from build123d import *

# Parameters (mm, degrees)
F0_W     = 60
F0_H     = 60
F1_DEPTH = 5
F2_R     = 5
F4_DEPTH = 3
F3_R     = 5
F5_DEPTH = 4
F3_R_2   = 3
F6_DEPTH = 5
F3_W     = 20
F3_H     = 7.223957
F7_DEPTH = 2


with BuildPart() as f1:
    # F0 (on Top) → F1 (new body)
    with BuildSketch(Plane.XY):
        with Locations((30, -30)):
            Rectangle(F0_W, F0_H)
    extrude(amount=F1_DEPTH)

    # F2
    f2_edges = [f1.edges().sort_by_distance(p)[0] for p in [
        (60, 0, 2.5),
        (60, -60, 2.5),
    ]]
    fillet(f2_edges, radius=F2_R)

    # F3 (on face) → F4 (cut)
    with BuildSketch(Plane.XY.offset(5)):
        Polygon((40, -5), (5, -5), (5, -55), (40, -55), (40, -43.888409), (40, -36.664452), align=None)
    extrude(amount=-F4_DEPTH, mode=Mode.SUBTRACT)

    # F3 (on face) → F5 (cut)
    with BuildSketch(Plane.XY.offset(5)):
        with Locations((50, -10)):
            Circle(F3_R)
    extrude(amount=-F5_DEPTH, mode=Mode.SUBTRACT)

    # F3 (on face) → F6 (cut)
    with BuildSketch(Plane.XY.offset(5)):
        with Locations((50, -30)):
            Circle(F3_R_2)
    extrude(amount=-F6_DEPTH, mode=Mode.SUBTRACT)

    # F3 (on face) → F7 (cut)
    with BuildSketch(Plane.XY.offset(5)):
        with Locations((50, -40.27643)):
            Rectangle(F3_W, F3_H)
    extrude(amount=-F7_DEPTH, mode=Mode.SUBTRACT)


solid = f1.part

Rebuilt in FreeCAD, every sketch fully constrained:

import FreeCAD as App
import Part
import Sketcher


def edges_at(feature, points):
    """Names of the edges that pass closest to the given points."""
    edges = feature.Shape.Edges
    near = lambda p: min(range(len(edges)), key=lambda i: edges[i].distToShape(Part.Vertex(*p))[0])
    return sorted({f"Edge{near(p) + 1}" for p in points})


def add_polygon(sketch, points):
    """Adds a closed chain of lines whose ends are joined by coincident constraints."""
    first, n = sketch.GeometryCount, len(points)
    for a, b in zip(points, points[1:] + points[:1]):
        sketch.addGeometry(Part.LineSegment(App.Vector(*a, 0), App.Vector(*b, 0)), False)
    for i in range(n):
        sketch.addConstraint(Sketcher.Constraint("Coincident", first + i, 2, first + (i + 1) % n, 1))

doc = App.newDocument("Part")
body = doc.addObject("PartDesign::Body", "Body")

# Sketch on XY plane
sketch1 = doc.addObject("Sketcher::SketchObject", "Sketch")
body.addObject(sketch1)
sketch1.AttachmentSupport = (doc.XY_Plane, [""])
sketch1.MapMode = "FlatFace"
add_polygon(sketch1, [(0, 0), (0, -60), (60, -60), (60, 0)])  # lines 0-3
sketch1.addConstraint(Sketcher.Constraint("Vertical", 0))
sketch1.addConstraint(Sketcher.Constraint("Horizontal", 1))
sketch1.addConstraint(Sketcher.Constraint("Vertical", 2))
sketch1.addConstraint(Sketcher.Constraint("Horizontal", 3))
sketch1.addConstraint(Sketcher.Constraint("Coincident", 3, 2, -1, 1))
sketch1.addConstraint(Sketcher.Constraint("Equal", 3, 0))
sketch1.addConstraint(Sketcher.Constraint("DistanceX", 1, 1, 1, 2, 60.0))
pad1 = doc.addObject("PartDesign::Pad", "Pad")
body.addObject(pad1)
pad1.Profile = sketch1
pad1.Length = 5
doc.recompute()

fillet = doc.addObject("PartDesign::Fillet", "Fillet")
body.addObject(fillet)
fillet.Base = (pad1, edges_at(pad1, [(60, 0, 2.5), (60, -60, 2.5)]))
fillet.Radius = 5

# Sketch on XY plane
sketch2 = doc.addObject("Sketcher::SketchObject", "Sketch001")
body.addObject(sketch2)
sketch2.AttachmentSupport = (doc.XY_Plane, [""])
sketch2.MapMode = "FlatFace"
sketch2.AttachmentOffset = App.Placement(App.Vector(0, 0, 5), App.Rotation())
add_polygon(sketch2, [(40, -5), (5, -5), (5, -55), (40, -55)])  # lines 0-3
sketch2.addConstraint(Sketcher.Constraint("Horizontal", 0))
sketch2.addConstraint(Sketcher.Constraint("Vertical", 1))
sketch2.addConstraint(Sketcher.Constraint("Horizontal", 2))
sketch2.addConstraint(Sketcher.Constraint("Vertical", 3))
sketch2.addConstraint(Sketcher.Constraint("DistanceX", 0, 2, 0, 1, 35.0))
sketch2.addConstraint(Sketcher.Constraint("DistanceY", 1, 2, 1, 1, 50.0))
sketch2.addConstraint(Sketcher.Constraint("DistanceX", -1, 1, 0, 2, 5.0))
sketch2.addConstraint(Sketcher.Constraint("DistanceY", 0, 2, -1, 1, 5.0))
pocket1 = doc.addObject("PartDesign::Pocket", "Pocket")
body.addObject(pocket1)
pocket1.Profile = sketch2
pocket1.Length = 3

# Sketch on XY plane
sketch3 = doc.addObject("Sketcher::SketchObject", "Sketch002")
body.addObject(sketch3)
sketch3.AttachmentSupport = (doc.XY_Plane, [""])
sketch3.MapMode = "FlatFace"
sketch3.AttachmentOffset = App.Placement(App.Vector(0, 0, 5), App.Rotation())
sketch3.addGeometry(Part.Circle(App.Vector(50, -10, 0), App.Vector(0, 0, 1), 5), False)
sketch3.addConstraint(Sketcher.Constraint("Diameter", 0, 10.0))
sketch3.addConstraint(Sketcher.Constraint("DistanceX", -1, 1, 0, 3, 50.0))
sketch3.addConstraint(Sketcher.Constraint("DistanceY", 0, 3, -1, 1, 10.0))
pocket2 = doc.addObject("PartDesign::Pocket", "Pocket001")
body.addObject(pocket2)
pocket2.Profile = sketch3
pocket2.Length = 4

# Sketch on XY plane
sketch4 = doc.addObject("Sketcher::SketchObject", "Sketch003")
body.addObject(sketch4)
sketch4.AttachmentSupport = (doc.XY_Plane, [""])
sketch4.MapMode = "FlatFace"
sketch4.AttachmentOffset = App.Placement(App.Vector(0, 0, 5), App.Rotation())
sketch4.addGeometry(Part.Circle(App.Vector(50, -30, 0), App.Vector(0, 0, 1), 3), False)
sketch4.addConstraint(Sketcher.Constraint("Diameter", 0, 6.0))
sketch4.addConstraint(Sketcher.Constraint("DistanceX", -1, 1, 0, 3, 50.0))
sketch4.addConstraint(Sketcher.Constraint("DistanceY", 0, 3, -1, 1, 30.0))
pocket3 = doc.addObject("PartDesign::Pocket", "Pocket002")
body.addObject(pocket3)
pocket3.Profile = sketch4
pocket3.Length = 5

# Sketch on XY plane
sketch5 = doc.addObject("Sketcher::SketchObject", "Sketch004")
body.addObject(sketch5)
sketch5.AttachmentSupport = (doc.XY_Plane, [""])
sketch5.MapMode = "FlatFace"
sketch5.AttachmentOffset = App.Placement(App.Vector(0, 0, 5), App.Rotation())
add_polygon(sketch5, [(40, -37), (40, -44), (60, -44), (60, -37)])  # lines 0-3
sketch5.addConstraint(Sketcher.Constraint("Vertical", 0))
sketch5.addConstraint(Sketcher.Constraint("Horizontal", 1))
sketch5.addConstraint(Sketcher.Constraint("Vertical", 2))
sketch5.addConstraint(Sketcher.Constraint("Horizontal", 3))
sketch5.addConstraint(Sketcher.Constraint("DistanceX", 1, 1, 1, 2, 20.0))
sketch5.addConstraint(Sketcher.Constraint("DistanceX", -1, 1, 0, 2, 40.0))
sketch5.addConstraint(Sketcher.Constraint("DistanceY", 0, 2, 0, 1, 7.223957))
sketch5.addConstraint(Sketcher.Constraint("DistanceY", 0, 2, -1, 1, 43.888408))
pocket4 = doc.addObject("PartDesign::Pocket", "Pocket003")
body.addObject(pocket4)
pocket4.Profile = sketch5
pocket4.Length = 2

doc.recompute()
